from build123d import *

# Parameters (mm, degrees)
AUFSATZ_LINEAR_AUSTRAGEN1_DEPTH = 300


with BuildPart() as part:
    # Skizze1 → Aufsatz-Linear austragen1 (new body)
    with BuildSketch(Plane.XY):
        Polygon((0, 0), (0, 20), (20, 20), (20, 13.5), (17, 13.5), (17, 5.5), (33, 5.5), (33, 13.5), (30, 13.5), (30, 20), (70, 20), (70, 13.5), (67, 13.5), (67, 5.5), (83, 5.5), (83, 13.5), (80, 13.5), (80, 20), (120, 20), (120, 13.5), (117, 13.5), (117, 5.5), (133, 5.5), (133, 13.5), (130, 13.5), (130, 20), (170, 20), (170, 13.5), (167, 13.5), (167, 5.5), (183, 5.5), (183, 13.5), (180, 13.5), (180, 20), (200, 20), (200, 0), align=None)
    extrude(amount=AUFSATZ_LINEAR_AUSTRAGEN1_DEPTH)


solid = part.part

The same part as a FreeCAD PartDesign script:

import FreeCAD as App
import Part
import Sketcher
from FreeCAD import Vector


def add_polygon(sketch, points):
    """Adds a closed chain of lines whose ends are joined by coincident constraints."""
    first, n = sketch.GeometryCount, len(points)
    for a, b in zip(points, points[1:] + points[:1]):
        sketch.addGeometry(Part.LineSegment(App.Vector(*a, 0), App.Vector(*b, 0)), False)
    for i in range(n):
        sketch.addConstraint(Sketcher.Constraint("Coincident", first + i, 2, first + (i + 1) % n, 1))

doc = App.newDocument("Part")
params = doc.addObject("Spreadsheet::Sheet", "Params")
for row, (alias, value) in enumerate([
    ("sketch1_width", "200 mm"),
    ("sketch1_width2", "20 mm"),
    ("sketch1_width3", "3 mm"),
    ("sketch1_width4", "16 mm"),
    ("sketch1_height", "8 mm"),
    ("pad1_length", "300 mm"),
], start=1):
    params.set(f"A{row}", alias)
    params.set(f"B{row}", "=" + value)
    params.setAlias(f"B{row}", alias)

body = doc.addObject("PartDesign::Body", "Body")

# Sketch on XY plane
sketch1 = body.newObject("Sketcher::SketchObject", "Sketch")
sketch1.AttachmentSupport = (doc.getObject("XY_Plane"), [""])
sketch1.MapMode = "FlatFace"
add_polygon(sketch1, [(0, 20), (0, 0), (200, 0), (200, 20), (180, 20), (180, 13.5), (183, 13.5), (183, 5.5), (167, 5.5), (167, 13.5), (170, 13.5), (170, 20), (130, 20), (130, 13.5), (133, 13.5), (133, 5.5), (117, 5.5), (117, 13.5), (120, 13.5), (120, 20), (80, 20), (80, 13.5), (83, 13.5), (83, 5.5), (67, 5.5), (67, 13.5), (70, 13.5), (70, 20), (30, 20), (30, 13.5), (33, 13.5), (33, 5.5), (17, 5.5), (17, 13.5), (20, 13.5), (20, 20)])  # lines 0-35
sketch1.addConstraint(Sketcher.Constraint("Vertical", 0))
sketch1.addConstraint(Sketcher.Constraint("Horizontal", 1))
sketch1.addConstraint(Sketcher.Constraint("Vertical", 2))
sketch1.addConstraint(Sketcher.Constraint("Horizontal", 3))
sketch1.addConstraint(Sketcher.Constraint("Vertical", 4))
sketch1.addConstraint(Sketcher.Constraint("Horizontal", 5))
sketch1.addConstraint(Sketcher.Constraint("Vertical", 6))
sketch1.addConstraint(Sketcher.Constraint("Horizontal", 7))
sketch1.addConstraint(Sketcher.Constraint("Vertical", 8))
sketch1.addConstraint(Sketcher.Constraint("Horizontal", 9))
sketch1.addConstraint(Sketcher.Constraint("Vertical", 10))
sketch1.addConstraint(Sketcher.Constraint("Horizontal", 11))
sketch1.addConstraint(Sketcher.Constraint("Vertical", 12))
sketch1.addConstraint(Sketcher.Constraint("Horizontal", 13))
sketch1.addConstraint(Sketcher.Constraint("Vertical", 14))
sketch1.addConstraint(Sketcher.Constraint("Horizontal", 15))
sketch1.addConstraint(Sketcher.Constraint("Vertical", 16))
sketch1.addConstraint(Sketcher.Constraint("Horizontal", 17))
sketch1.addConstraint(Sketcher.Constraint("Vertical", 18))
sketch1.addConstraint(Sketcher.Constraint("Horizontal", 19))
sketch1.addConstraint(Sketcher.Constraint("Vertical", 20))
sketch1.addConstraint(Sketcher.Constraint("Horizontal", 21))
sketch1.addConstraint(Sketcher.Constraint("Vertical", 22))
sketch1.addConstraint(Sketcher.Constraint("Horizontal", 23))
sketch1.addConstraint(Sketcher.Constraint("Vertical", 24))
sketch1.addConstraint(Sketcher.Constraint("Horizontal", 25))
sketch1.addConstraint(Sketcher.Constraint("Vertical", 26))
sketch1.addConstraint(Sketcher.Constraint("Horizontal", 27))
sketch1.addConstraint(Sketcher.Constraint("Vertical", 28))
sketch1.addConstraint(Sketcher.Constraint("Horizontal", 29))
sketch1.addConstraint(Sketcher.Constraint("Vertical", 30))
sketch1.addConstraint(Sketcher.Constraint("Horizontal", 31))
sketch1.addConstraint(Sketcher.Constraint("Vertical", 32))
sketch1.addConstraint(Sketcher.Constraint("Horizontal", 33))
sketch1.addConstraint(Sketcher.Constraint("Vertical", 34))
sketch1.addConstraint(Sketcher.Constraint("Horizontal", 35))
sketch1.addConstraint(Sketcher.Constraint("Coincident", 0, 2, -1, 1))
sketch1.addConstraint(Sketcher.Constraint("Horizontal", 5, 2, 8, 2))
sketch1.addConstraint(Sketcher.Constraint("Horizontal", 3, 2, 10, 2))
sketch1.addConstraint(Sketcher.Constraint("Horizontal", 9, 2, 12, 2))
sketch1.addConstraint(Sketcher.Constraint("Horizontal", 7, 2, 14, 2))
sketch1.addConstraint(Sketcher.Constraint("Horizontal", 13, 2, 16, 2))
sketch1.addConstraint(Sketcher.Constraint("Horizontal", 11, 2, 18, 2))
sketch1.addConstraint(Sketcher.Constraint("Horizontal", 17, 2, 20, 2))
sketch1.addConstraint(Sketcher.Constraint("Horizontal", 15, 2, 22, 2))
sketch1.addConstraint(Sketcher.Constraint("Horizontal", 21, 2, 24, 2))
sketch1.addConstraint(Sketcher.Constraint("Horizontal", 19, 2, 26, 2))
sketch1.addConstraint(Sketcher.Constraint("Horizontal", 25, 2, 28, 2))
sketch1.addConstraint(Sketcher.Constraint("Horizontal", 23, 2, 30, 2))
sketch1.addConstraint(Sketcher.Constraint("Horizontal", 29, 2, 32, 2))
sketch1.addConstraint(Sketcher.Constraint("Horizontal", 27, 2, 34, 2))
sketch1.addConstraint(Sketcher.Constraint("Equal", 5, 9))
sketch1.addConstraint(Sketcher.Constraint("Equal", 9, 13))
sketch1.addConstraint(Sketcher.Constraint("Equal", 7, 15))
sketch1.addConstraint(Sketcher.Constraint("Equal", 13, 17))
sketch1.addConstraint(Sketcher.Constraint("Equal", 11, 19))
sketch1.addConstraint(Sketcher.Constraint("Equal", 17, 21))
sketch1.addConstraint(Sketcher.Constraint("Equal", 15, 23))
sketch1.addConstraint(Sketcher.Constraint("Equal", 21, 25))
sketch1.addConstraint(Sketcher.Constraint("Equal", 19, 27))
sketch1.addConstraint(Sketcher.Constraint("Equal", 25, 29))
sketch1.addConstraint(Sketcher.Constraint("Equal", 23, 31))
sketch1.addConstraint(Sketcher.Constraint("Equal", 29, 33))
sketch1.addConstraint(Sketcher.Constraint("Equal", 3, 35))
sketch1.addConstraint(Sketcher.Constraint("Equal", 35, 0))
sketch1.addConstraint(Sketcher.Constraint("DistanceX", 1, 1, 1, 2, 200.0))
sketch1.addConstraint(Sketcher.Constraint("DistanceX", 3, 2, 3, 1, 20.0))
sketch1.addConstraint(Sketcher.Constraint("DistanceX", 5, 1, 5, 2, 3.0))
sketch1.addConstraint(Sketcher.Constraint("DistanceX", 7, 2, 7, 1, 16.0))
sketch1.addConstraint(Sketcher.Constraint("DistanceY", 6, 2, 6, 1, 8.0))
sketch1.addConstraint(Sketcher.Constraint("DistanceY", 4, 2, 4, 1, 6.5))
sketch1.setExpression("Constraints[101]", "Params.sketch1_width")
sketch1.setExpression("Constraints[102]", "Params.sketch1_width2")
sketch1.setExpression("Constraints[103]", "Params.sketch1_width3")
sketch1.setExpression("Constraints[104]", "Params.sketch1_width4")
sketch1.setExpression("Constraints[105]", "Params.sketch1_height")
pad1 = body.newObject("PartDesign::Pad", "Pad")
pad1.Profile = sketch1
pad1.setExpression("Length", "Params.pad1_length")

doc.recompute()
